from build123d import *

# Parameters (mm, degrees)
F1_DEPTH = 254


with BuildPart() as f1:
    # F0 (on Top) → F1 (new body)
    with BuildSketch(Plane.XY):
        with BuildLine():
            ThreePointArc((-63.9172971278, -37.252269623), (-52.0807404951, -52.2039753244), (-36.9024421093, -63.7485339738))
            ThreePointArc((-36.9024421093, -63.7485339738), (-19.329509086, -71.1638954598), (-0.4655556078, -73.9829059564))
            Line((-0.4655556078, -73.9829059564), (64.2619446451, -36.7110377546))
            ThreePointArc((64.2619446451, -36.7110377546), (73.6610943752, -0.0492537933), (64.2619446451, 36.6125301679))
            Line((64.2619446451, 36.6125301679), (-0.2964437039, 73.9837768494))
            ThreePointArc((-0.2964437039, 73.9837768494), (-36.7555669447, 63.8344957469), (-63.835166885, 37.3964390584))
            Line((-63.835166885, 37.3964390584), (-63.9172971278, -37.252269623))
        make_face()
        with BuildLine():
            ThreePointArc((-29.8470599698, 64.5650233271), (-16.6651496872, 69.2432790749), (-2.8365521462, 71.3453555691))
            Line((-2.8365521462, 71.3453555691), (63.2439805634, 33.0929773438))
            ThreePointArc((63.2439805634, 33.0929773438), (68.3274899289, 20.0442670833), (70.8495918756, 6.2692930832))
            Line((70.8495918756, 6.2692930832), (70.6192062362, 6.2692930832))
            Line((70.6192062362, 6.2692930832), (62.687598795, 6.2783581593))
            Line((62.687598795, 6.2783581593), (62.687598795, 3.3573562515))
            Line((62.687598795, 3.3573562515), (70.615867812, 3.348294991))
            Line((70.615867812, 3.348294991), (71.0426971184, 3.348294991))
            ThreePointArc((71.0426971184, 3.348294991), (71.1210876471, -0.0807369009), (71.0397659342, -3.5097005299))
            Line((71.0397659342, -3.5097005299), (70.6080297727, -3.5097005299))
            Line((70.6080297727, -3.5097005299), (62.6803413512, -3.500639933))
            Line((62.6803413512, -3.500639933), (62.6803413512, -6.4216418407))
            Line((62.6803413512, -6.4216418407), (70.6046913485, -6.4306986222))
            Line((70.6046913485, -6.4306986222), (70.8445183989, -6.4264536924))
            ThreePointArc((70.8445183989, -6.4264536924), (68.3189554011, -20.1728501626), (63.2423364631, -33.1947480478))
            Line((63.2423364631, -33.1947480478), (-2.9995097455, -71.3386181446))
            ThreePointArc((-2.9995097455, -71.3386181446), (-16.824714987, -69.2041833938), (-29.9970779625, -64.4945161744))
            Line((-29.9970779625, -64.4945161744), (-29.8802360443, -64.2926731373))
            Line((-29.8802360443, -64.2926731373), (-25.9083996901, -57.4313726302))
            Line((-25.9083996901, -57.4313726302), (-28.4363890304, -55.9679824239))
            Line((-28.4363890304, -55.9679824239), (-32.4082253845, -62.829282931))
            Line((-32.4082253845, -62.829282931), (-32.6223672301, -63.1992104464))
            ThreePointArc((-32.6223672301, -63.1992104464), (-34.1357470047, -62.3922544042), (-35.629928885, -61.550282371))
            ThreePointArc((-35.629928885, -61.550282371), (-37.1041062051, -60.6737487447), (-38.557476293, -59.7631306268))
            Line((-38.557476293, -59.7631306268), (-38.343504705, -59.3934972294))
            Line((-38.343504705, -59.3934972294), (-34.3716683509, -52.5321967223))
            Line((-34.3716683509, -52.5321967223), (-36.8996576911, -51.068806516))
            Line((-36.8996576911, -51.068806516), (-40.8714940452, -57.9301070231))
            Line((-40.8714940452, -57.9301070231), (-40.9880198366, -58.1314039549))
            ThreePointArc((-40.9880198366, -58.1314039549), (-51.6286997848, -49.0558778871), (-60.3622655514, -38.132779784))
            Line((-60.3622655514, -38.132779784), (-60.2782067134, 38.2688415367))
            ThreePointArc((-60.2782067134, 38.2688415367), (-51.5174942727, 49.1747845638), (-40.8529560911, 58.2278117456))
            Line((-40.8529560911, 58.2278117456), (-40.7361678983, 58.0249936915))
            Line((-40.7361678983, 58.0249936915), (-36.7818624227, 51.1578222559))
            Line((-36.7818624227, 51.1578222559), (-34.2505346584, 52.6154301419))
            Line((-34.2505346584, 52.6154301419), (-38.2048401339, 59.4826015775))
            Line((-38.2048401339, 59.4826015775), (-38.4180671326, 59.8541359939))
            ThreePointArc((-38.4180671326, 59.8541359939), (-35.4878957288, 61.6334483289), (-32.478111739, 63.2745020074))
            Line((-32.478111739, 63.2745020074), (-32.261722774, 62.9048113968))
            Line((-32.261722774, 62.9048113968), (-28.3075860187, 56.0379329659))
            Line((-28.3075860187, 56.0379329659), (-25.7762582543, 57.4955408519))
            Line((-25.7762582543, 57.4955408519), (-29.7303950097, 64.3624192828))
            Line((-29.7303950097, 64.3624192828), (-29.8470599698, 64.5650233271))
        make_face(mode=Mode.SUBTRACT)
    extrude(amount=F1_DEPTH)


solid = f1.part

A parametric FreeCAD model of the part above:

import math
import FreeCAD as App
import Part
import Sketcher
from FreeCAD import Vector
Q = App.Units.Quantity

doc = App.newDocument("Part")
body = doc.addObject("PartDesign::Body", "Body")

# Sketch on XY plane
sketch1 = doc.addObject("Sketcher::SketchObject", "Sketch")
body.addObject(sketch1)
sketch1.AttachmentSupport = (doc.XY_Plane, [""])
sketch1.MapMode = "FlatFace"
sketch1.addGeometry(Part.ArcOfCircle(Part.Circle(Vector(1.27611, 2.197187, 0), Vector(0, 0, 1), 76.2), math.radians(-148.821272), math.radians(-120.068225)), False)
sketch1.addGeometry(Part.ArcOfCircle(Part.Circle(Vector(1.27611, 2.197187, 0), Vector(0, 0, 1), 76.2), math.radians(-120.068225), math.radians(-91.309695)), False)
sketch1.addGeometry(Part.LineSegment(Vector(-0.465556, -73.982906, 0), Vector(64.261945, -36.711038, 0)), False)
sketch1.addGeometry(Part.ArcOfCircle(Part.Circle(Vector(-2.538906, -0.049254, 0), Vector(0, 0, 1), 76.2), math.radians(-28.758954), math.radians(28.758954)), False)
sketch1.addGeometry(Part.LineSegment(Vector(64.261945, 36.61253, 0), Vector(-0.296444, 73.983777, 0)), False)
sketch1.addGeometry(Part.ArcOfCircle(Part.Circle(Vector(1.268987, -2.200142, 0), Vector(0, 0, 1), 76.2), math.radians(91.17715), math.radians(148.691882)), False)
sketch1.addGeometry(Part.LineSegment(Vector(-63.835167, 37.396439, 0), Vector(-63.917297, -37.25227, 0)), False)
sketch1.addGeometry(Part.LineSegment(Vector(-29.730395, 64.362419, 0), Vector(-29.84706, 64.565023, 0)), False)
sketch1.addGeometry(Part.ArcOfCircle(Part.Circle(Vector(1.268987, -2.200142, 0), Vector(0, 0, 1), 73.66), math.radians(93.195113), math.radians(114.987973)), False)
sketch1.addGeometry(Part.LineSegment(Vector(-2.836552, 71.345356, 0), Vector(63.243981, 33.092977, 0)), False)
sketch1.addGeometry(Part.ArcOfCircle(Part.Circle(Vector(-2.538906, -0.049254, 0), Vector(0, 0, 1), 73.66), math.radians(4.920873), math.radians(26.73953)), False)
sketch1.addGeometry(Part.LineSegment(Vector(70.849592, 6.269293, 0), Vector(70.619206, 6.269293, 0)), False)
sketch1.addGeometry(Part.LineSegment(Vector(70.619206, 6.269293, 0), Vector(62.687599, 6.278358, 0)), False)
sketch1.addGeometry(Part.LineSegment(Vector(62.687599, 6.278358, 0), Vector(62.687599, 3.357356, 0)), False)
sketch1.addGeometry(Part.LineSegment(Vector(62.687599, 3.357356, 0), Vector(70.615868, 3.348295, 0)), False)
sketch1.addGeometry(Part.LineSegment(Vector(70.615868, 3.348295, 0), Vector(71.042697, 3.348295, 0)), False)
sketch1.addGeometry(Part.ArcOfCircle(Part.Circle(Vector(-2.538906, -0.049254, 0), Vector(0, 0, 1), 73.66), math.radians(-2.692669), math.radians(2.643691)), False)
sketch1.addGeometry(Part.LineSegment(Vector(71.039766, -3.509701, 0), Vector(70.60803, -3.509701, 0)), False)
sketch1.addGeometry(Part.LineSegment(Vector(70.60803, -3.509701, 0), Vector(62.680341, -3.50064, 0)), False)
sketch1.addGeometry(Part.LineSegment(Vector(62.680341, -3.50064, 0), Vector(62.680341, -6.421642, 0)), False)
sketch1.addGeometry(Part.LineSegment(Vector(62.680341, -6.421642, 0), Vector(70.604691, -6.430699, 0)), False)
sketch1.addGeometry(Part.LineSegment(Vector(70.604691, -6.430699, 0), Vector(70.844518, -6.426454, 0)), False)
sketch1.addGeometry(Part.ArcOfCircle(Part.Circle(Vector(-2.538906, -0.049254, 0), Vector(0, 0, 1), 73.66), math.radians(-26.742372), math.radians(-4.966666)), False)
sketch1.addGeometry(Part.LineSegment(Vector(63.242336, -33.194748, 0), Vector(-2.99951, -71.338618, 0)), False)
sketch1.addGeometry(Part.ArcOfCircle(Part.Circle(Vector(1.27611, 2.197187, 0), Vector(0, 0, 1), 73.66), math.radians(-115.122901), math.radians(-93.327624)), False)
sketch1.addGeometry(Part.LineSegment(Vector(-29.997078, -64.494516, 0), Vector(-25.9084, -57.431373, 0)), False)
sketch1.addGeometry(Part.LineSegment(Vector(-25.9084, -57.431373, 0), Vector(-28.436389, -55.967982, 0)), False)
sketch1.addGeometry(Part.LineSegment(Vector(-28.436389, -55.967982, 0), Vector(-32.408225, -62.829283, 0)), False)
sketch1.addGeometry(Part.LineSegment(Vector(-32.408225, -62.829283, 0), Vector(-32.622367, -63.19921, 0)), False)
sketch1.addGeometry(Part.ArcOfCircle(Part.Circle(Vector(1.27611, 2.197187, 0), Vector(0, 0, 1), 73.66), math.radians(-120.06832), math.radians(-117.400141)), False)
sketch1.addGeometry(Part.ArcOfCircle(Part.Circle(Vector(1.27611, 2.197187, 0), Vector(0, 0, 1), 73.66), math.radians(-122.736504), math.radians(-120.06832)), False)
sketch1.addGeometry(Part.LineSegment(Vector(-38.557476, -59.763131, 0), Vector(-38.343505, -59.393497, 0)), False)
sketch1.addGeometry(Part.LineSegment(Vector(-38.343505, -59.393497, 0), Vector(-34.371668, -52.532197, 0)), False)
sketch1.addGeometry(Part.LineSegment(Vector(-34.371668, -52.532197, 0), Vector(-36.899658, -51.068807, 0)), False)
sketch1.addGeometry(Part.LineSegment(Vector(-36.899658, -51.068807, 0), Vector(-40.871494, -57.930107, 0)), False)
sketch1.addGeometry(Part.LineSegment(Vector(-40.871494, -57.930107, 0), Vector(-40.98802, -58.131404, 0)), False)
sketch1.addGeometry(Part.ArcOfCircle(Part.Circle(Vector(1.27611, 2.197187, 0), Vector(0, 0, 1), 73.66), math.radians(-146.803291), math.radians(-125.01376)), False)
sketch1.addGeometry(Part.LineSegment(Vector(-60.362266, -38.13278, 0), Vector(-60.278207, 38.268842, 0)), False)
sketch1.addGeometry(Part.ArcOfCircle(Part.Circle(Vector(1.268987, -2.200142, 0), Vector(0, 0, 1), 73.66), math.radians(124.878832), math.radians(146.673973)), False)
sketch1.addGeometry(Part.LineSegment(Vector(-40.852956, 58.227812, 0), Vector(-40.736168, 58.024994, 0)), False)
sketch1.addGeometry(Part.LineSegment(Vector(-40.736168, 58.024994, 0), Vector(-36.781862, 51.157822, 0)), False)
sketch1.addGeometry(Part.LineSegment(Vector(-36.781862, 51.157822, 0), Vector(-34.250535, 52.61543, 0)), False)
sketch1.addGeometry(Part.LineSegment(Vector(-34.250535, 52.61543, 0), Vector(-38.20484, 59.482602, 0)), False)
sketch1.addGeometry(Part.LineSegment(Vector(-38.20484, 59.482602, 0), Vector(-38.418067, 59.854136, 0)), False)
sketch1.addGeometry(Part.ArcOfCircle(Part.Circle(Vector(1.268987, -2.200142, 0), Vector(0, 0, 1), 73.66), math.radians(117.267593), math.radians(122.601106)), False)
sketch1.addGeometry(Part.LineSegment(Vector(-32.478112, 63.274502, 0), Vector(-32.261723, 62.904811, 0)), False)
sketch1.addGeometry(Part.LineSegment(Vector(-32.261723, 62.904811, 0), Vector(-28.307586, 56.037933, 0)), False)
sketch1.addGeometry(Part.LineSegment(Vector(-28.307586, 56.037933, 0), Vector(-25.776258, 57.495541, 0)), False)
sketch1.addGeometry(Part.LineSegment(Vector(-25.776258, 57.495541, 0), Vector(-29.730395, 64.362419, 0)), False)
sketch1.addConstraint(Sketcher.Constraint("Coincident", 0, 2, 1, 1))
sketch1.addConstraint(Sketcher.Constraint("Coincident", 1, 2, 2, 1))
sketch1.addConstraint(Sketcher.Constraint("Coincident", 2, 2, 3, 1))
sketch1.addConstraint(Sketcher.Constraint("Coincident", 3, 2, 4, 1))
sketch1.addConstraint(Sketcher.Constraint("Coincident", 4, 2, 5, 1))
sketch1.addConstraint(Sketcher.Constraint("Coincident", 5, 2, 6, 1))
sketch1.addConstraint(Sketcher.Constraint("Coincident", 6, 2, 0, 1))
sketch1.addConstraint(Sketcher.Constraint("Coincident", 7, 2, 8, 2))
sketch1.addConstraint(Sketcher.Constraint("Coincident", 8, 1, 9, 1))
sketch1.addConstraint(Sketcher.Constraint("Coincident", 9, 2, 10, 2))
sketch1.addConstraint(Sketcher.Constraint("Coincident", 10, 1, 11, 1))
sketch1.addConstraint(Sketcher.Constraint("Coincident", 11, 2, 12, 1))
sketch1.addConstraint(Sketcher.Constraint("Coincident", 12, 2, 13, 1))
sketch1.addConstraint(Sketcher.Constraint("Coincident", 13, 2, 14, 1))
sketch1.addConstraint(Sketcher.Constraint("Coincident", 14, 2, 15, 1))
sketch1.addConstraint(Sketcher.Constraint("Coincident", 15, 2, 16, 2))
sketch1.addConstraint(Sketcher.Constraint("Coincident", 16, 1, 17, 1))
sketch1.addConstraint(Sketcher.Constraint("Coincident", 17, 2, 18, 1))
sketch1.addConstraint(Sketcher.Constraint("Coincident", 18, 2, 19, 1))
sketch1.addConstraint(Sketcher.Constraint("Coincident", 19, 2, 20, 1))
sketch1.addConstraint(Sketcher.Constraint("Coincident", 20, 2, 21, 1))
sketch1.addConstraint(Sketcher.Constraint("Coincident", 21, 2, 22, 2))
sketch1.addConstraint(Sketcher.Constraint("Coincident", 22, 1, 23, 1))
sketch1.addConstraint(Sketcher.Constraint("Coincident", 23, 2, 24, 2))
sketch1.addConstraint(Sketcher.Constraint("Coincident", 24, 1, 25, 1))
sketch1.addConstraint(Sketcher.Constraint("Coincident", 25, 2, 26, 1))
sketch1.addConstraint(Sketcher.Constraint("Coincident", 26, 2, 27, 1))
sketch1.addConstraint(Sketcher.Constraint("Coincident", 27, 2, 28, 1))
sketch1.addConstraint(Sketcher.Constraint("Coincident", 28, 2, 29, 2))
sketch1.addConstraint(Sketcher.Constraint("Coincident", 29, 1, 30, 2))
sketch1.addConstraint(Sketcher.Constraint("Coincident", 30, 1, 31, 1))
sketch1.addConstraint(Sketcher.Constraint("Coincident", 31, 2, 32, 1))
sketch1.addConstraint(Sketcher.Constraint("Coincident", 32, 2, 33, 1))
sketch1.addConstraint(Sketcher.Constraint("Coincident", 33, 2, 34, 1))
sketch1.addConstraint(Sketcher.Constraint("Coincident", 34, 2, 35, 1))
sketch1.addConstraint(Sketcher.Constraint("Coincident", 35, 2, 36, 2))
sketch1.addConstraint(Sketcher.Constraint("Coincident", 36, 1, 37, 1))
sketch1.addConstraint(Sketcher.Constraint("Coincident", 37, 2, 38, 2))
sketch1.addConstraint(Sketcher.Constraint("Coincident", 38, 1, 39, 1))
sketch1.addConstraint(Sketcher.Constraint("Coincident", 39, 2, 40, 1))
sketch1.addConstraint(Sketcher.Constraint("Coincident", 40, 2, 41, 1))
sketch1.addConstraint(Sketcher.Constraint("Coincident", 41, 2, 42, 1))
sketch1.addConstraint(Sketcher.Constraint("Coincident", 42, 2, 43, 1))
sketch1.addConstraint(Sketcher.Constraint("Coincident", 43, 2, 44, 2))
sketch1.addConstraint(Sketcher.Constraint("Coincident", 44, 1, 45, 1))
sketch1.addConstraint(Sketcher.Constraint("Coincident", 45, 2, 46, 1))
sketch1.addConstraint(Sketcher.Constraint("Coincident", 46, 2, 47, 1))
sketch1.addConstraint(Sketcher.Constraint("Coincident", 47, 2, 48, 1))
sketch1.addConstraint(Sketcher.Constraint("Coincident", 48, 2, 7, 1))
sketch1.addConstraint(Sketcher.Constraint("Horizontal", 11))
sketch1.addConstraint(Sketcher.Constraint("Vertical", 13))
sketch1.addConstraint(Sketcher.Constraint("Horizontal", 15))
sketch1.addConstraint(Sketcher.Constraint("Horizontal", 17))
sketch1.addConstraint(Sketcher.Constraint("Vertical", 19))
sketch1.addConstraint(Sketcher.Constraint("Coincident", 1, 3, 0, 3))
sketch1.addConstraint(Sketcher.Constraint("Coincident", 8, 3, 5, 3))
sketch1.addConstraint(Sketcher.Constraint("Coincident", 10, 3, 3, 3))
sketch1.addConstraint(Sketcher.Constraint("Coincident", 16, 3, 3, 3))
sketch1.addConstraint(Sketcher.Constraint("Coincident", 22, 3, 3, 3))
sketch1.addConstraint(Sketcher.Constraint("Coincident", 24, 3, 0, 3))
sketch1.addConstraint(Sketcher.Constraint("Coincident", 29, 3, 0, 3))
sketch1.addConstraint(Sketcher.Constraint("Coincident", 30, 3, 0, 3))
sketch1.addConstraint(Sketcher.Constraint("Coincident", 36, 3, 0, 3))
sketch1.addConstraint(Sketcher.Constraint("Coincident", 38, 3, 5, 3))
sketch1.addConstraint(Sketcher.Constraint("Coincident", 44, 3, 5, 3))
sketch1.addConstraint(Sketcher.Constraint("Radius", 0, Q("3 in")))
sketch1.addConstraint(Sketcher.Constraint("Radius", 3, Q("3 in")))
sketch1.addConstraint(Sketcher.Constraint("Radius", 5, Q("3 in")))
sketch1.addConstraint(Sketcher.Constraint("Radius", 8, Q("2.9 in")))
sketch1.addConstraint(Sketcher.Constraint("Radius", 10, Q("2.9 in")))
sketch1.addConstraint(Sketcher.Constraint("Radius", 16, Q("2.9 in")))
sketch1.addConstraint(Sketcher.Constraint("Radius", 22, Q("2.9 in")))
sketch1.addConstraint(Sketcher.Constraint("Radius", 24, Q("2.9 in")))
sketch1.addConstraint(Sketcher.Constraint("Radius", 29, Q("2.9 in")))
sketch1.addConstraint(Sketcher.Constraint("Radius", 36, Q("2.9 in")))
sketch1.addConstraint(Sketcher.Constraint("Radius", 38, Q("2.9 in")))
sketch1.addConstraint(Sketcher.Constraint("Radius", 44, Q("2.9 in")))
sketch1.addConstraint(Sketcher.Constraint("DistanceY", 13, 2, 13, 1, Q("0.1150001 in")))
sketch1.addConstraint(Sketcher.Constraint("DistanceY", 19, 2, 19, 1, Q("0.1150001 in")))
sketch1.addConstraint(Sketcher.Constraint("Distance", 26, Q("0.115 in")))
sketch1.addConstraint(Sketcher.Constraint("Distance", 33, Q("0.115 in")))
sketch1.addConstraint(Sketcher.Constraint("Distance", 41, Q("0.115 in")))
sketch1.addConstraint(Sketcher.Constraint("Distance", 47, Q("0.115 in")))
sketch1.addConstraint(Sketcher.Constraint("DistanceX", 15, 1, 15, 2, 0.426829))
sketch1.addConstraint(Sketcher.Constraint("DistanceX", -1, 1, 12, 2, 62.687599))
sketch1.addConstraint(Sketcher.Constraint("DistanceY", 16, 1, -1, 1, 3.509701))
sketch1.addConstraint(Sketcher.Constraint("DistanceY", 20, 2, -1, 1, 6.430699))
sketch1.addConstraint(Sketcher.Constraint("DistanceX", 25, 2, -1, 1, 25.9084))
sketch1.addConstraint(Sketcher.Constraint("DistanceY", -1, 1, 42, 2, 59.482602))
sketch1.addConstraint(Sketcher.Constraint("Distance", 9, 76.353659))
sketch1.addConstraint(Sketcher.Constraint("Distance", 35, 0.232591))
sketch1.addConstraint(Sketcher.Constraint("Distance", 39, 0.23404))
sketch1.addConstraint(Sketcher.Constraint("DistanceX", 11, 2, 11, 1, 0.230386))
sketch1.addConstraint(Sketcher.Constraint("DistanceX", 17, 2, 17, 1, 0.431736))
sketch1.addConstraint(Sketcher.Constraint("DistanceX", -1, 1, 0, 3, 1.27611))
sketch1.addConstraint(Sketcher.Constraint("DistanceY", 5, 3, -1, 1, 2.200142))
sketch1.addConstraint(Sketcher.Constraint("DistanceY", -1, 1, 3, 2, 36.61253))
sketch1.addConstraint(Sketcher.Constraint("DistanceY", -1, 1, 5, 2, 37.396439))
sketch1.addConstraint(Sketcher.Constraint("DistanceY", 6, 2, -1, 1, 37.25227))
sketch1.addConstraint(Sketcher.Constraint("DistanceX", 7, 2, -1, 1, 29.84706))
sketch1.addConstraint(Sketcher.Constraint("DistanceX", -1, 1, 9, 2, 63.243981))
sketch1.addConstraint(Sketcher.Constraint("DistanceX", -1, 1, 10, 1, 70.849592))
sketch1.addConstraint(Sketcher.Constraint("DistanceY", -1, 1, 12, 2, 6.278358))
sketch1.addConstraint(Sketcher.Constraint("DistanceX", -1, 1, 17, 2, 70.60803))
sketch1.addConstraint(Sketcher.Constraint("DistanceX", -1, 1, 18, 2, 62.680341))
sketch1.addConstraint(Sketcher.Constraint("DistanceY", 18, 2, -1, 1, 3.50064))
sketch1.addConstraint(Sketcher.Constraint("DistanceX", -1, 1, 20, 2, 70.604691))
sketch1.addConstraint(Sketcher.Constraint("DistanceX", -1, 1, 21, 2, 70.844518))
sketch1.addConstraint(Sketcher.Constraint("DistanceY", 22, 1, -1, 1, 33.194748))
sketch1.addConstraint(Sketcher.Constraint("DistanceX", 23, 2, -1, 1, 2.99951))
sketch1.addConstraint(Sketcher.Constraint("DistanceY", 23, 2, -1, 1, 71.338618))
sketch1.addConstraint(Sketcher.Constraint("DistanceX", 26, 2, -1, 1, 28.436389))
sketch1.addConstraint(Sketcher.Constraint("DistanceY", 28, 2, -1, 1, 63.19921))
sketch1.addConstraint(Sketcher.Constraint("DistanceX", 29, 1, -1, 1, 35.629929))
sketch1.addConstraint(Sketcher.Constraint("DistanceY", 30, 1, -1, 1, 59.763131))
sketch1.addConstraint(Sketcher.Constraint("DistanceX", 32, 2, -1, 1, 34.371668))
sketch1.addConstraint(Sketcher.Constraint("DistanceX", 35, 2, -1, 1, 40.98802))
sketch1.addConstraint(Sketcher.Constraint("DistanceY", 36, 1, -1, 1, 38.13278))
sketch1.addConstraint(Sketcher.Constraint("DistanceY", -1, 1, 37, 2, 38.268842))
sketch1.addConstraint(Sketcher.Constraint("DistanceY", -1, 1, 38, 1, 58.227812))
sketch1.addConstraint(Sketcher.Constraint("DistanceY", -1, 1, 41, 2, 52.61543))
sketch1.addConstraint(Sketcher.Constraint("DistanceX", 42, 2, -1, 1, 38.20484))
sketch1.addConstraint(Sketcher.Constraint("DistanceX", 44, 1, -1, 1, 32.478112))
sketch1.addConstraint(Sketcher.Constraint("DistanceY", -1, 1, 45, 2, 62.904811))
sketch1.addConstraint(Sketcher.Constraint("DistanceX", 47, 2, -1, 1, 25.776258))
sketch1.addConstraint(Sketcher.Constraint("DistanceY", -1, 1, 47, 2, 57.495541))
sketch1.addConstraint(Sketcher.Constraint("DistanceY", -1, 1, 48, 2, 64.362419))
sketch1.addConstraint(Sketcher.Constraint("Distance", 2, 74.691642))
sketch1.addConstraint(Sketcher.Constraint("Distance", 4, 74.594876))
sketch1.addConstraint(Sketcher.Constraint("Distance", 7, 0.233793))
sketch1.addConstraint(Sketcher.Constraint("Distance", 14, 7.928274))
sketch1.addConstraint(Sketcher.Constraint("Distance", 23, 76.439107))
sketch1.addConstraint(Sketcher.Constraint("Distance", 25, 8.161206))
sketch1.addConstraint(Sketcher.Constraint("Distance", 27, 7.927984))
sketch1.addConstraint(Sketcher.Constraint("Distance", 28, 0.427438))
sketch1.addConstraint(Sketcher.Constraint("Distance", 31, 0.427098))
sketch1.addConstraint(Sketcher.Constraint("Distance", 32, 7.927984))
sketch1.addConstraint(Sketcher.Constraint("Distance", 34, 7.927984))
sketch1.addConstraint(Sketcher.Constraint("Distance", 40, 7.924303))
sketch1.addConstraint(Sketcher.Constraint("Distance", 42, 7.924303))
sketch1.addConstraint(Sketcher.Constraint("Distance", 43, 0.428373))
sketch1.addConstraint(Sketcher.Constraint("Distance", 45, 0.428364))
sketch1.addConstraint(Sketcher.Constraint("Distance", 46, 7.923965))
sketch1.addConstraint(Sketcher.Constraint("Distance", 48, 7.923965))
sketch1.addConstraint(Sketcher.Constraint("DistanceX", 0, 2, -1, 1, 36.902442))
sketch1.addConstraint(Sketcher.Constraint("DistanceX", 1, 2, -1, 1, 0.465556))
sketch1.addConstraint(Sketcher.Constraint("DistanceX", 27, 2, -1, 1, 32.408225))
sketch1.addConstraint(Sketcher.Constraint("DistanceX", 31, 2, -1, 1, 38.343505))
sketch1.addConstraint(Sketcher.Constraint("DistanceX", 34, 2, -1, 1, 40.871494))
sketch1.addConstraint(Sketcher.Constraint("DistanceX", 39, 2, -1, 1, 40.736168))
pad1 = doc.addObject("PartDesign::Pad", "Pad")
body.addObject(pad1)
pad1.Profile = sketch1
pad1.Length = Q("10 in")

doc.recompute()
